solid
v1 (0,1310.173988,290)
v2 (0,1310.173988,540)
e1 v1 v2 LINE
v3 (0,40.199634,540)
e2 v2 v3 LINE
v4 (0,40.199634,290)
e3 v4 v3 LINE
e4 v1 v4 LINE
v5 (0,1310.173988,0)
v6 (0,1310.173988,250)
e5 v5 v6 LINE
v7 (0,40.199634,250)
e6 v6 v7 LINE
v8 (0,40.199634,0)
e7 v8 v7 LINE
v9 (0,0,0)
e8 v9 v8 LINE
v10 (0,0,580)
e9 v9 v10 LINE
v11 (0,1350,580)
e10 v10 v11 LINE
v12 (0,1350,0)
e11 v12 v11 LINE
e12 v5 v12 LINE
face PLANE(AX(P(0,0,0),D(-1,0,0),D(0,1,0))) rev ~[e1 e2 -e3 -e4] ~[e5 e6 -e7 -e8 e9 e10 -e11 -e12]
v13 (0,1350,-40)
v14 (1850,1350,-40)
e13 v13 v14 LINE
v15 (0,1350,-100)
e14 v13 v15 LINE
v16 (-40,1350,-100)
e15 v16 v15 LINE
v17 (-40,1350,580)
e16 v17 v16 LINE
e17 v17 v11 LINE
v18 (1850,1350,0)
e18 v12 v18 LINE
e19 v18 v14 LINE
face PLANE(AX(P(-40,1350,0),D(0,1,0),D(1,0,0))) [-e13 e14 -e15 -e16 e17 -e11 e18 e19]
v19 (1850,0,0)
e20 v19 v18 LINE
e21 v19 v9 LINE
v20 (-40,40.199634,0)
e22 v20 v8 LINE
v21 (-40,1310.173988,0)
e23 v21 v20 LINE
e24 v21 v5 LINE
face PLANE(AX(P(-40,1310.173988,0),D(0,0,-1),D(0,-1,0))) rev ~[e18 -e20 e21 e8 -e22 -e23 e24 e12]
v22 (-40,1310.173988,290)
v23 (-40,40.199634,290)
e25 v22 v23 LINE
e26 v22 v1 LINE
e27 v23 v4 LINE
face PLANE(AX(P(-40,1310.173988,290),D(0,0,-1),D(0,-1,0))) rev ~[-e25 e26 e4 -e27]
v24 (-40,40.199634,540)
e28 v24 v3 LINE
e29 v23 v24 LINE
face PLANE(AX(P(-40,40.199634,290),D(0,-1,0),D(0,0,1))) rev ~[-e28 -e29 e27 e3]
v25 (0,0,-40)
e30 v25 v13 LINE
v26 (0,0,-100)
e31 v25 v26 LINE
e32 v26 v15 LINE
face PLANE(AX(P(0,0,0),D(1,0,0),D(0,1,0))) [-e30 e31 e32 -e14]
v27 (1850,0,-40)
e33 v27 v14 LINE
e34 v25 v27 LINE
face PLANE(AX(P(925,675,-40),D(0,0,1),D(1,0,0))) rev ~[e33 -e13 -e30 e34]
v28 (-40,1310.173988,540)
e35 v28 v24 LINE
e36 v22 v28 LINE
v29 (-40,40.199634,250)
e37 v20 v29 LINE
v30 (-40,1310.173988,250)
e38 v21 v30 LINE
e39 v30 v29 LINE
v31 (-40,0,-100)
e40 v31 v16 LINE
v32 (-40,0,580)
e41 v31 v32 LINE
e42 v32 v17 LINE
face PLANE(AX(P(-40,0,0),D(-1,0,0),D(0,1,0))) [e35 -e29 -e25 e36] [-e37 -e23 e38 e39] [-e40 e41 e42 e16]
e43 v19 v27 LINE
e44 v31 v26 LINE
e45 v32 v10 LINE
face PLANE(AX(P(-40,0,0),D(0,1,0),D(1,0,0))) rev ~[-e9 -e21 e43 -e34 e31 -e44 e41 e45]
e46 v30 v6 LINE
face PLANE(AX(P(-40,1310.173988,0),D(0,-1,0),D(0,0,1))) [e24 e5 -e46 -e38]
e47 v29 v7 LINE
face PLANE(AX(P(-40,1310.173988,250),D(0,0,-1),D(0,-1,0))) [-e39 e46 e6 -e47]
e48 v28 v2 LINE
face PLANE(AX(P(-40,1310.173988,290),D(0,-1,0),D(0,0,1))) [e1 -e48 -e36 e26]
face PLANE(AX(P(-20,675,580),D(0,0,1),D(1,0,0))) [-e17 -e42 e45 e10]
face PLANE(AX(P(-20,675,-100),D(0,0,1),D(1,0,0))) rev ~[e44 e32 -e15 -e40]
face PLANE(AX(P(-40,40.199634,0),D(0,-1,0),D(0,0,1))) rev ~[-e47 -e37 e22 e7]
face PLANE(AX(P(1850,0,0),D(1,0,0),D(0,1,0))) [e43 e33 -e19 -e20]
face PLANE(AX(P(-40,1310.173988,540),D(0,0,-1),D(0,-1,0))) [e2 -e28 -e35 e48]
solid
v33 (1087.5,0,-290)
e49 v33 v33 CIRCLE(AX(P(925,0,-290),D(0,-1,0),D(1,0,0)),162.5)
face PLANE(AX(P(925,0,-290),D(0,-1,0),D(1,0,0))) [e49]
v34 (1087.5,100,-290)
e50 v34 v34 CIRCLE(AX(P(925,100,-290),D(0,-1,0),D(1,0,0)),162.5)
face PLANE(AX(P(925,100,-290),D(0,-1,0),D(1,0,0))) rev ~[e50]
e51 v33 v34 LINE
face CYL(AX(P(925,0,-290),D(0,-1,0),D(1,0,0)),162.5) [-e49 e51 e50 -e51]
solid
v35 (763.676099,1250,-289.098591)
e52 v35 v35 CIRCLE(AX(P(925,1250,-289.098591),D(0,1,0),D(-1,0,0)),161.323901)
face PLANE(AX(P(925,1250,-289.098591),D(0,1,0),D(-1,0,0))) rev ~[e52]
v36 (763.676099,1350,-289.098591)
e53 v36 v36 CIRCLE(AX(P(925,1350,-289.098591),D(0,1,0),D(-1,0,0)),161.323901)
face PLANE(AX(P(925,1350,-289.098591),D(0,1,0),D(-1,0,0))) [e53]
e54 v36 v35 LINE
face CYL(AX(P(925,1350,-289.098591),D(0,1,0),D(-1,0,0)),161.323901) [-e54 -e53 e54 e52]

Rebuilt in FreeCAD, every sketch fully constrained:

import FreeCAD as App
import Part
import Sketcher
Q = App.Units.Quantity

doc = App.newDocument("Part")
body = doc.addObject("PartDesign::Body", "Body")

# Sketch on XY plane
sketch1 = doc.addObject("Sketcher::SketchObject", "Sketch")
body.addObject(sketch1)
sketch1.AttachmentSupport = (doc.XY_Plane, [""])
sketch1.MapMode = "FlatFace"
sketch1.addGeometry([
    Part.LineSegment(App.Vector(0, 1350, 0), App.Vector(0, 0, 0)),
    Part.LineSegment(App.Vector(0, 0, 0), App.Vector(1850, 0, 0)),
    Part.LineSegment(App.Vector(1850, 0, 0), App.Vector(1850, 1350, 0)),
    Part.LineSegment(App.Vector(1850, 1350, 0), App.Vector(0, 1350, 0)),
], False)
sketch1.addConstraint([
    Sketcher.Constraint("Coincident", 0, 2, 1, 1),
    Sketcher.Constraint("Coincident", 1, 2, 2, 1),
    Sketcher.Constraint("Coincident", 2, 2, 3, 1),
    Sketcher.Constraint("Coincident", 3, 2, 0, 1),
    Sketcher.Constraint("Vertical", 0),
    Sketcher.Constraint("Horizontal", 1),
    Sketcher.Constraint("Vertical", 2),
    Sketcher.Constraint("Horizontal", 3),
    Sketcher.Constraint("Coincident", 0, 2, -1, 1),
    Sketcher.Constraint("DistanceX", 1, 1, 1, 2, Q("1850 mm")),
    Sketcher.Constraint("DistanceY", 0, 2, 0, 1, Q("1350 mm")),
])
pad1 = doc.addObject("PartDesign::Pad", "Pad")
body.addObject(pad1)
pad1.Profile = sketch1
pad1.Length = 40
pad1.Reversed = True

# Sketch on XY plane
sketch2 = doc.addObject("Sketcher::SketchObject", "Sketch001")
body.addObject(sketch2)
sketch2.AttachmentSupport = (doc.XY_Plane, [""])
sketch2.MapMode = "FlatFace"
sketch2.addGeometry([
    Part.LineSegment(App.Vector(-40, 1350, 0), App.Vector(-40, 0, 0)),
    Part.LineSegment(App.Vector(-40, 0, 0), App.Vector(0, 0, 0)),
    Part.LineSegment(App.Vector(0, 0, 0), App.Vector(0, 1350, 0)),
    Part.LineSegment(App.Vector(0, 1350, 0), App.Vector(-40, 1350, 0)),
], False)
sketch2.addConstraint([
    Sketcher.Constraint("Coincident", 0, 2, 1, 1),
    Sketcher.Constraint("Coincident", 1, 2, 2, 1),
    Sketcher.Constraint("Coincident", 2, 2, 3, 1),
    Sketcher.Constraint("Coincident", 3, 2, 0, 1),
    Sketcher.Constraint("Vertical", 0),
    Sketcher.Constraint("Horizontal", 1),
    Sketcher.Constraint("Vertical", 2),
    Sketcher.Constraint("Horizontal", 3),
    Sketcher.Constraint("Coincident", 1, 2, -1, 1),
    Sketcher.Constraint("DistanceX", 1, 1, 1, 2, Q("40 mm")),
    Sketcher.Constraint("DistanceY", 0, 2, 0, 1, Q("1350 mm")),
])
pad2 = doc.addObject("PartDesign::Pad", "Pad001")
body.addObject(pad2)
pad2.Profile = sketch2
pad2.Type = "TwoLengths"
pad2.Length = 100
pad2.Length2 = 580
pad2.Reversed = True

# Sketch on YZ plane
sketch3 = doc.addObject("Sketcher::SketchObject", "Sketch002")
body.addObject(sketch3)
sketch3.AttachmentSupport = (doc.YZ_Plane, [""])
sketch3.MapMode = "FlatFace"
sketch3.AttachmentOffset = App.Placement(App.Vector(0, 0, -40), App.Rotation())
sketch3.addGeometry([
    Part.LineSegment(App.Vector(1310.173988, 540, 0), App.Vector(1310.173988, 290, 0)),
    Part.LineSegment(App.Vector(1310.173988, 290, 0), App.Vector(40.199634, 290, 0)),
    Part.LineSegment(App.Vector(40.199634, 290, 0), App.Vector(40.199634, 540, 0)),
    Part.LineSegment(App.Vector(40.199634, 540, 0), App.Vector(1310.173988, 540, 0)),
], False)
sketch3.addConstraint([
    Sketcher.Constraint("Coincident", 0, 2, 1, 1),
    Sketcher.Constraint("Coincident", 1, 2, 2, 1),
    Sketcher.Constraint("Coincident", 2, 2, 3, 1),
    Sketcher.Constraint("Coincident", 3, 2, 0, 1),
    Sketcher.Constraint("Vertical", 0),
    Sketcher.Constraint("Horizontal", 1),
    Sketcher.Constraint("Vertical", 2),
    Sketcher.Constraint("Horizontal", 3),
    Sketcher.Constraint("DistanceY", 0, 2, 0, 1, Q("250 mm")),
    Sketcher.Constraint("DistanceY", -1, 1, 0, 2, Q("290 mm")),
    Sketcher.Constraint("DistanceX", 1, 2, 1, 1, Q("1269.974355 mm")),
    Sketcher.Constraint("DistanceX", -1, 1, 0, 2, Q("1310.173988 mm")),
])
pocket1 = doc.addObject("PartDesign::Pocket", "Pocket")
body.addObject(pocket1)
pocket1.Profile = sketch3
pocket1.Length = 100
pocket1.Reversed = True

# Sketch on YZ plane
sketch4 = doc.addObject("Sketcher::SketchObject", "Sketch003")
body.addObject(sketch4)
sketch4.AttachmentSupport = (doc.YZ_Plane, [""])
sketch4.MapMode = "FlatFace"
sketch4.AttachmentOffset = App.Placement(App.Vector(0, 0, -40), App.Rotation())
sketch4.addGeometry([
    Part.LineSegment(App.Vector(1310.173988, 540, 0), App.Vector(1310.173988, 290, 0)),  # 0
    Part.LineSegment(App.Vector(1310.173988, 290, 0), App.Vector(40.199634, 290, 0)),  # 1
    Part.LineSegment(App.Vector(40.199634, 290, 0), App.Vector(40.199634, 540, 0)),  # 2
    Part.LineSegment(App.Vector(40.199634, 540, 0), App.Vector(1310.173988, 540, 0)),  # 3
    Part.LineSegment(App.Vector(1310.173988, 250, 0), App.Vector(1310.173988, 0, 0)),  # 4
    Part.LineSegment(App.Vector(1310.173988, 0, 0), App.Vector(40.199634, 0, 0)),  # 5
    Part.LineSegment(App.Vector(40.199634, 0, 0), App.Vector(40.199634, 250, 0)),  # 6
    Part.LineSegment(App.Vector(40.199634, 250, 0), App.Vector(1310.173988, 250, 0)),  # 7
], False)
sketch4.addConstraint([
    Sketcher.Constraint("Coincident", 0, 2, 1, 1),
    Sketcher.Constraint("Coincident", 1, 2, 2, 1),
    Sketcher.Constraint("Coincident", 2, 2, 3, 1),
    Sketcher.Constraint("Coincident", 3, 2, 0, 1),
    Sketcher.Constraint("Coincident", 4, 2, 5, 1),
    Sketcher.Constraint("Coincident", 5, 2, 6, 1),
    Sketcher.Constraint("Coincident", 6, 2, 7, 1),
    Sketcher.Constraint("Coincident", 7, 2, 4, 1),
    Sketcher.Constraint("Vertical", 0),
    Sketcher.Constraint("Horizontal", 1),
    Sketcher.Constraint("Vertical", 2),
    Sketcher.Constraint("Horizontal", 3),
    Sketcher.Constraint("Vertical", 4),
    Sketcher.Constraint("Horizontal", 5),
    Sketcher.Constraint("Vertical", 6),
    Sketcher.Constraint("Horizontal", 7),
    Sketcher.Constraint("PointOnObject", 4, 2, -1),
    Sketcher.Constraint("Vertical", 3, 2, 4, 2),
    Sketcher.Constraint("Vertical", 2, 2, 5, 2),
    Sketcher.Constraint("Equal", 2, 4),
    Sketcher.Constraint("DistanceY", 0, 2, 0, 1, Q("250 mm")),
    Sketcher.Constraint("DistanceY", -1, 1, 0, 2, Q("290 mm")),
    Sketcher.Constraint("DistanceX", 1, 2, 1, 1, Q("1269.974355 mm")),
    Sketcher.Constraint("DistanceX", -1, 1, 0, 2, Q("1310.173988 mm")),
])
pocket2 = doc.addObject("PartDesign::Pocket", "Pocket001")
body.addObject(pocket2)
pocket2.Profile = sketch4
pocket2.Length = 100
pocket2.Reversed = True
body2 = doc.addObject("PartDesign::Body", "Body001")

# Sketch on XZ plane
sketch5 = doc.addObject("Sketcher::SketchObject", "Sketch004")
body2.addObject(sketch5)
sketch5.AttachmentSupport = (doc.getObject("XZ_Plane001"), [""])
sketch5.MapMode = "FlatFace"
sketch5.addGeometry(Part.Circle(App.Vector(925, -290, 0), App.Vector(0, 0, 1), 162.5), False)
sketch5.addConstraint([
    Sketcher.Constraint("Diameter", 0, Q("325 mm")),
    Sketcher.Constraint("DistanceX", -1, 1, 0, 3, Q("925 mm")),
    Sketcher.Constraint("DistanceY", 0, 3, -1, 1, Q("290 mm")),
])
pad3 = doc.addObject("PartDesign::Pad", "Pad002")
body2.addObject(pad3)
pad3.Profile = sketch5
pad3.Length = 100
pad3.Reversed = True
body3 = doc.addObject("PartDesign::Body", "Body002")

# Sketch on XZ plane
sketch6 = doc.addObject("Sketcher::SketchObject", "Sketch005")
body3.addObject(sketch6)
sketch6.AttachmentSupport = (doc.getObject("XZ_Plane002"), [""])
sketch6.MapMode = "FlatFace"
sketch6.AttachmentOffset = App.Placement(App.Vector(0, 0, -1350), App.Rotation())
sketch6.addGeometry(Part.Circle(App.Vector(925, -289.098591, 0), App.Vector(0, 0, 1), 161.323901), False)
sketch6.addConstraint([
    Sketcher.Constraint("DistanceX", -1, 1, 0, 3, Q("925 mm")),
    Sketcher.Constraint("Diameter", 0, Q("322.647801 mm")),
    Sketcher.Constraint("DistanceY", 0, 3, -1, 1, Q("289.098591 mm")),
])
pad4 = doc.addObject("PartDesign::Pad", "Pad003")
body3.addObject(pad4)
pad4.Profile = sketch6
pad4.Length = 100

doc.recompute()
